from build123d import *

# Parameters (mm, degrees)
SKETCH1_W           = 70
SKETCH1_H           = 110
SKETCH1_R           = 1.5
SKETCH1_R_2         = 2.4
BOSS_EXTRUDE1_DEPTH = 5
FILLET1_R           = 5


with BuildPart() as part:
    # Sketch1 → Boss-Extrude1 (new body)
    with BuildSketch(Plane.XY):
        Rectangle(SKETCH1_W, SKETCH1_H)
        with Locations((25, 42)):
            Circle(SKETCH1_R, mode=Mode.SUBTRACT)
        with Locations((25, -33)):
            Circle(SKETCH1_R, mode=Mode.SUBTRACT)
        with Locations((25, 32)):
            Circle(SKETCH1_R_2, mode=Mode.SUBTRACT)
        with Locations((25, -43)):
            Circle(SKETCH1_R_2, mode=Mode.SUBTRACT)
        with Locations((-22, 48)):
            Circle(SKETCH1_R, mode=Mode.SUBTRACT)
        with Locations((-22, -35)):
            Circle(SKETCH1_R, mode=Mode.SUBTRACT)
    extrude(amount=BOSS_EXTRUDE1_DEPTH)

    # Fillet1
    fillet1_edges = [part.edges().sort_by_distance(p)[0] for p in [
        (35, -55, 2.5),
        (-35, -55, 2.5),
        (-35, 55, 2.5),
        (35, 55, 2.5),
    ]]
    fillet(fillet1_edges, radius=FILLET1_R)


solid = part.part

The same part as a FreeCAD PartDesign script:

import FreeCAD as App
import Part
import Sketcher
from FreeCAD import Vector
Q = App.Units.Quantity


def edges_at(feature, points):
    """Names of the edges that pass closest to the given points."""
    edges = feature.Shape.Edges
    near = lambda p: min(range(len(edges)), key=lambda i: edges[i].distToShape(Part.Vertex(*p))[0])
    return sorted({f"Edge{near(p) + 1}" for p in points})


def add_polygon(sketch, points):
    """Adds a closed chain of lines whose ends are joined by coincident constraints."""
    first, n = sketch.GeometryCount, len(points)
    for a, b in zip(points, points[1:] + points[:1]):
        sketch.addGeometry(Part.LineSegment(App.Vector(*a, 0), App.Vector(*b, 0)), False)
    for i in range(n):
        sketch.addConstraint(Sketcher.Constraint("Coincident", first + i, 2, first + (i + 1) % n, 1))

doc = App.newDocument("Part")
params = doc.addObject("Spreadsheet::Sheet", "Params")
for row, (alias, value) in enumerate([
    ("sketch1_diameter", "3 mm"),
    ("sketch1_diameter2", "4.8 mm"),
    ("sketch1_width", "70 mm"),
    ("sketch1_height", "110 mm"),
    ("pad1_length", "5 mm"),
    ("fillet_radius", "5 mm"),
], start=1):
    params.set(f"A{row}", alias)
    params.set(f"B{row}", "=" + value)
    params.setAlias(f"B{row}", alias)

body = doc.addObject("PartDesign::Body", "Body")

# Sketch on XY plane
sketch1 = body.newObject("Sketcher::SketchObject", "Sketch")
sketch1.AttachmentSupport = (doc.getObject("XY_Plane"), [""])
sketch1.MapMode = "FlatFace"
add_polygon(sketch1, [(-35, 55), (-35, -55), (35, -55), (35, 55)])  # lines 0-3
sketch1.addGeometry(Part.Circle(Vector(-22, -35, 0), Vector(0, 0, 1), 1.5), False)  # 4
sketch1.addGeometry(Part.Circle(Vector(25, -43, 0), Vector(0, 0, 1), 2.4), False)  # 5
sketch1.addGeometry(Part.Circle(Vector(25, -33, 0), Vector(0, 0, 1), 1.5), False)  # 6
sketch1.addGeometry(Part.Circle(Vector(-22, 48, 0), Vector(0, 0, 1), 1.5), False)  # 7
sketch1.addGeometry(Part.Circle(Vector(25, 32, 0), Vector(0, 0, 1), 2.4), False)  # 8
sketch1.addGeometry(Part.Circle(Vector(25, 42, 0), Vector(0, 0, 1), 1.5), False)  # 9
sketch1.addConstraint([
    Sketcher.Constraint("Vertical", 0),
    Sketcher.Constraint("Horizontal", 1),
    Sketcher.Constraint("Vertical", 2),
    Sketcher.Constraint("Horizontal", 3),
    Sketcher.Constraint("Equal", 4, 6),
    Sketcher.Constraint("Equal", 6, 7),
    Sketcher.Constraint("Equal", 5, 8),
    Sketcher.Constraint("Equal", 7, 9),
    Sketcher.Constraint("Symmetric", 0, 2, 2, 2, -1, 1),
    Sketcher.Constraint("Vertical", 5, 3, 6, 3),
    Sketcher.Constraint("Vertical", 4, 3, 7, 3),
    Sketcher.Constraint("Vertical", 6, 3, 8, 3),
    Sketcher.Constraint("Vertical", 8, 3, 9, 3),
    Sketcher.Constraint("Diameter", 4, Q("3 mm")),
    Sketcher.Constraint("Diameter", 5, Q("4.8 mm")),
    Sketcher.Constraint("DistanceX", 1, 1, 1, 2, Q("70 mm")),
    Sketcher.Constraint("DistanceY", 0, 2, 0, 1, Q("110 mm")),
    Sketcher.Constraint("DistanceX", 4, 3, -1, 1, Q("22 mm")),
    Sketcher.Constraint("DistanceY", 4, 3, -1, 1, Q("35 mm")),
    Sketcher.Constraint("DistanceX", -1, 1, 5, 3, Q("25 mm")),
    Sketcher.Constraint("DistanceY", 5, 3, -1, 1, Q("43 mm")),
    Sketcher.Constraint("DistanceY", 6, 3, -1, 1, Q("33 mm")),
    Sketcher.Constraint("DistanceY", -1, 1, 7, 3, Q("48 mm")),
    Sketcher.Constraint("DistanceY", -1, 1, 8, 3, Q("32 mm")),
    Sketcher.Constraint("DistanceY", -1, 1, 9, 3, Q("42 mm")),
])
sketch1.setExpression("Constraints[17]", "Params.sketch1_diameter")
sketch1.setExpression("Constraints[18]", "Params.sketch1_diameter2")
sketch1.setExpression("Constraints[19]", "Params.sketch1_width")
sketch1.setExpression("Constraints[20]", "Params.sketch1_height")
pad1 = body.newObject("PartDesign::Pad", "Pad")
pad1.Profile = sketch1
pad1.setExpression("Length", "Params.pad1_length")
doc.recompute()

fillet = body.newObject("PartDesign::Fillet", "Fillet")
fillet.Base = (pad1, edges_at(pad1, [
    (35, -55, 2.5),
    (-35, -55, 2.5),
    (-35, 55, 2.5),
    (35, 55, 2.5),
]))
fillet.setExpression("Radius", "Params.fillet_radius")

doc.recompute()
